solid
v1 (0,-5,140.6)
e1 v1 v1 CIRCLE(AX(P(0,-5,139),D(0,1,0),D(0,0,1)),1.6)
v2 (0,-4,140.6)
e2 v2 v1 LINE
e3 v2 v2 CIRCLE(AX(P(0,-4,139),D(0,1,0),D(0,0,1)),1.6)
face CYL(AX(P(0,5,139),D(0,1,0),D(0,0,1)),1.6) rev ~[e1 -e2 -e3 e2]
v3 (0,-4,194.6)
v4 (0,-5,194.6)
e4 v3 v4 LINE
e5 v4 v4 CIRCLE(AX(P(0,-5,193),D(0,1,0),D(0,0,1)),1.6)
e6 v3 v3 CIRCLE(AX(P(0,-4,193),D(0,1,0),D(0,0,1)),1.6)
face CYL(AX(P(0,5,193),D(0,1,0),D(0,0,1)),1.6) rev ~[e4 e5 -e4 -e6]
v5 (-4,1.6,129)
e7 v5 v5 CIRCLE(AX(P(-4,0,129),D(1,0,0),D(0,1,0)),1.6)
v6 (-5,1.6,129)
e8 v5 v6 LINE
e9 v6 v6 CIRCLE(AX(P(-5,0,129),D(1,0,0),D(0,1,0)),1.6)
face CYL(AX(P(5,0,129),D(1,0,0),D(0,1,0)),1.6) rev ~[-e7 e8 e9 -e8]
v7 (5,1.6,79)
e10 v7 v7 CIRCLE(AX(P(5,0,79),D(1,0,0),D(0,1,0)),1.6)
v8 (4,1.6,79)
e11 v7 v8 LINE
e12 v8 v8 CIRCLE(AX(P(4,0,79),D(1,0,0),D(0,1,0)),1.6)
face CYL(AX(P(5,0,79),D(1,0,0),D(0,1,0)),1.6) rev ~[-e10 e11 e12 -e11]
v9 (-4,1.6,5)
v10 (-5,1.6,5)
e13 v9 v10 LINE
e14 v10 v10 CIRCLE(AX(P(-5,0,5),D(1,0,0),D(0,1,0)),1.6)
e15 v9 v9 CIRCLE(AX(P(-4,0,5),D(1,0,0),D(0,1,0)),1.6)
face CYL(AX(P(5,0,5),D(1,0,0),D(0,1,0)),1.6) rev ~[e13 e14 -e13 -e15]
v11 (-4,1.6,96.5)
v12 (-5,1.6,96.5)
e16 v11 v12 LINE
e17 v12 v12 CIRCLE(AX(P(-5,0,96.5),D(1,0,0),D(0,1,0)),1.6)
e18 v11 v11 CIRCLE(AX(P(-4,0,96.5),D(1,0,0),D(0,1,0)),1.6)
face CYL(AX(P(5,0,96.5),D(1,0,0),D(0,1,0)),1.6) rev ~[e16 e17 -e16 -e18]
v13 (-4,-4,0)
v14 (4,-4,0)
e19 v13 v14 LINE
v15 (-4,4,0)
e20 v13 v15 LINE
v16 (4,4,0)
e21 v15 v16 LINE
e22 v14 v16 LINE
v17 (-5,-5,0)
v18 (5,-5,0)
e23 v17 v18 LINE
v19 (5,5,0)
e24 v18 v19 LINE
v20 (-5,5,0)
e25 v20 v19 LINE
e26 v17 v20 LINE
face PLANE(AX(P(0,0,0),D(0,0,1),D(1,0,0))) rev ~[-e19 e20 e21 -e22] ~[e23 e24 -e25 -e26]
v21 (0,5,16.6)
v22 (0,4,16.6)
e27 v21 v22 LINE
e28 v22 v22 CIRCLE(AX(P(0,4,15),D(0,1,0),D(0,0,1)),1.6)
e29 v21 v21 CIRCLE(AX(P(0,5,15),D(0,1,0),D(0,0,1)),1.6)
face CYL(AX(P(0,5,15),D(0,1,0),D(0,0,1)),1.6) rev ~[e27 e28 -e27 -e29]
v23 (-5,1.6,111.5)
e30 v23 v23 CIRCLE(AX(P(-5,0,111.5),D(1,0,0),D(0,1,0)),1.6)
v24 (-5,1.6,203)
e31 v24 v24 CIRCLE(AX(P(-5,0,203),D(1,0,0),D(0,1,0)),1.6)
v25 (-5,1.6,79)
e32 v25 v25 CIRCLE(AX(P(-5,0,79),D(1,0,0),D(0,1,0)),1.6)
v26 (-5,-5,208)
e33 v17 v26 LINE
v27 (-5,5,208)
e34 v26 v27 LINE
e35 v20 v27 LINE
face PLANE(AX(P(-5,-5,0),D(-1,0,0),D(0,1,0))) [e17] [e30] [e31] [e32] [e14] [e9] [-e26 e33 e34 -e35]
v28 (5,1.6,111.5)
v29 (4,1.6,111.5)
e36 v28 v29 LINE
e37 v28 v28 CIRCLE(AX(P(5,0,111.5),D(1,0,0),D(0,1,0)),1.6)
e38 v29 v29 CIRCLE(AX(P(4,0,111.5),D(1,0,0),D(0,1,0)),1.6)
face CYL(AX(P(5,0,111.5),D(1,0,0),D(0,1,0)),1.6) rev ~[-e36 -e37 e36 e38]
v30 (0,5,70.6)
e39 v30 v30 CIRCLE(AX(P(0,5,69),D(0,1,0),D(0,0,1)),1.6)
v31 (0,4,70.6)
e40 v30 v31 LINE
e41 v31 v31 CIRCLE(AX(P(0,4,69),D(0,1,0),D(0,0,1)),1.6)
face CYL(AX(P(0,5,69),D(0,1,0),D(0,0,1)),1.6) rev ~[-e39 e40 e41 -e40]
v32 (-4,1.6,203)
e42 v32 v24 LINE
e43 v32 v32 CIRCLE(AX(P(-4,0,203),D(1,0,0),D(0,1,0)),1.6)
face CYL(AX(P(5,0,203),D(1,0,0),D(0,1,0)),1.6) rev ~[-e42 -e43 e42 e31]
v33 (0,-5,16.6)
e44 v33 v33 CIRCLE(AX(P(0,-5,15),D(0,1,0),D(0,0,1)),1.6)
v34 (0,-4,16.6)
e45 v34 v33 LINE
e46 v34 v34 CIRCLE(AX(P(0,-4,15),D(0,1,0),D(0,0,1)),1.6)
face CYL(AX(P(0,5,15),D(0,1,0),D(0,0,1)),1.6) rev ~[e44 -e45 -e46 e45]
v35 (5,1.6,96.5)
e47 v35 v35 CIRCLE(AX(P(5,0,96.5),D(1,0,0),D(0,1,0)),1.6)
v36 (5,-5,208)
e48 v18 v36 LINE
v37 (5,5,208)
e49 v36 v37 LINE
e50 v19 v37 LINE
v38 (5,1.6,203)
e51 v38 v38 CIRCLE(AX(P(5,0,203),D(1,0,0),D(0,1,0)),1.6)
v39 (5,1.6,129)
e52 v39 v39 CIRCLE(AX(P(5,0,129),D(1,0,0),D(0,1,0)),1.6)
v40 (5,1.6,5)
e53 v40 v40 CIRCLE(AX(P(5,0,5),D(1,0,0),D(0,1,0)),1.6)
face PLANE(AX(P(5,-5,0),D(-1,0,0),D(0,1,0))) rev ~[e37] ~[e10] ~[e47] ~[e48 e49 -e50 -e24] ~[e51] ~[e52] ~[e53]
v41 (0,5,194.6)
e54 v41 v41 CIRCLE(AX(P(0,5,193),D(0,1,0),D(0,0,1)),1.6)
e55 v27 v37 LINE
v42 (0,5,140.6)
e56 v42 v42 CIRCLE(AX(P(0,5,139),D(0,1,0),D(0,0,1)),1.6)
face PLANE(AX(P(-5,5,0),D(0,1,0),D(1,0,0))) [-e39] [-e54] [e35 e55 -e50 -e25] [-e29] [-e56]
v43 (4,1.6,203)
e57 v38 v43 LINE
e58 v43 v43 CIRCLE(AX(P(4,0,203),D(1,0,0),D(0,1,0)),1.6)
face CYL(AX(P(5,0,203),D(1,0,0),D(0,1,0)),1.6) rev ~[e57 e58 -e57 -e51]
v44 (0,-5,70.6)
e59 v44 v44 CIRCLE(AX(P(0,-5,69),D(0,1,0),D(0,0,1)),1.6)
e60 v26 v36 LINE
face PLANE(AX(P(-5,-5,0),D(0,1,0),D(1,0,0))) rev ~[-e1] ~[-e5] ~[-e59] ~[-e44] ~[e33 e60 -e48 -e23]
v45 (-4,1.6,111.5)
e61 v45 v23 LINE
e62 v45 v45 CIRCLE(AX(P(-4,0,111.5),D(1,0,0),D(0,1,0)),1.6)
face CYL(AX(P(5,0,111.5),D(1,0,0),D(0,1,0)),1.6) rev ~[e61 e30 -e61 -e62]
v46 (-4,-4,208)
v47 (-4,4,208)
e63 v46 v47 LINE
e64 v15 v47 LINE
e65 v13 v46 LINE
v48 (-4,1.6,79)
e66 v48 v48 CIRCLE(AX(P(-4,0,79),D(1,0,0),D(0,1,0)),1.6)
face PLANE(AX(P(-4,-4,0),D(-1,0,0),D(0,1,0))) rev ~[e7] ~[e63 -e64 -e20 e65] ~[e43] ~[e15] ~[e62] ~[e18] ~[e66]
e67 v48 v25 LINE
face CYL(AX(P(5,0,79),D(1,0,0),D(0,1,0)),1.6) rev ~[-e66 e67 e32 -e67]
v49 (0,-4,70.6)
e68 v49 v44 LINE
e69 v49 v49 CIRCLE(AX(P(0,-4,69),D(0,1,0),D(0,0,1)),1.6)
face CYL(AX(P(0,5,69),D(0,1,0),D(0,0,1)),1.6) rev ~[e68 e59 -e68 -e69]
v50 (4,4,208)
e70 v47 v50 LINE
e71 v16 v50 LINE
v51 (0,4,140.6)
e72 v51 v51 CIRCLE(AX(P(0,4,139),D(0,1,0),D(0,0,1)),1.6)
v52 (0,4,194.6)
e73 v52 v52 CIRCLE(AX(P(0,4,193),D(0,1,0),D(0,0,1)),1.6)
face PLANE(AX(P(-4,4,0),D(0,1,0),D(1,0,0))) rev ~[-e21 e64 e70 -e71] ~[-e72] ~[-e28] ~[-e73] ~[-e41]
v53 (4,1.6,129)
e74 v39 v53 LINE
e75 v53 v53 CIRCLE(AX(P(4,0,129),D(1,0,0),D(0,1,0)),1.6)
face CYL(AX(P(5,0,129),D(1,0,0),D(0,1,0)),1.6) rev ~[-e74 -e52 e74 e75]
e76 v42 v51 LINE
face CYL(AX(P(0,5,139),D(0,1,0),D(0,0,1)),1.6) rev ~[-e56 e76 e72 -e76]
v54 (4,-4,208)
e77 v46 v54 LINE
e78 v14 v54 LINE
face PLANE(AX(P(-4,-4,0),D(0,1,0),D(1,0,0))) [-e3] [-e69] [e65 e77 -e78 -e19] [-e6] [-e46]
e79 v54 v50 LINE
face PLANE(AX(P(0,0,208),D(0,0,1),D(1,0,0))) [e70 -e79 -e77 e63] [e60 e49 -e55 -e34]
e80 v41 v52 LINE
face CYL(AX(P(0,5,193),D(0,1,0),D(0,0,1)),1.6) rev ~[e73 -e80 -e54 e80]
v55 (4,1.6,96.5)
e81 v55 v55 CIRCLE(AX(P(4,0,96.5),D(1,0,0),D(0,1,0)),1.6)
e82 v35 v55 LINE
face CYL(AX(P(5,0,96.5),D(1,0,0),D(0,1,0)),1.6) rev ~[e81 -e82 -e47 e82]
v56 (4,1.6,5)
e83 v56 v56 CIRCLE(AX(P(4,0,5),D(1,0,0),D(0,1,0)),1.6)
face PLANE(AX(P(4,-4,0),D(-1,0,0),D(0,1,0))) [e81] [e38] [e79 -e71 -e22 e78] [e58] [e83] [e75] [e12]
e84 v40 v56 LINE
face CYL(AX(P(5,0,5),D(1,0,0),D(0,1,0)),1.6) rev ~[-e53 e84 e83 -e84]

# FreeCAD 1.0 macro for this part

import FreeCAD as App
import Part
import Sketcher
Q = App.Units.Quantity

doc = App.newDocument("Part")
params = doc.addObject("Spreadsheet::Sheet", "Params")
for row, (alias, value) in enumerate([
    ("sketch1_width", "10 mm"),
    ("sketch1_width2", "8 mm"),
    ("pad1_length", "208 mm"),
    ("sketch2_diameter", "3.2 mm"),
    ("sketch3_diameter", "3.2 mm"),
    ("sketch4_diameter", "3.2 mm"),
    ("sketch5_diameter", "3.2 mm"),
], start=1):
    params.set(f"A{row}", alias)
    params.set(f"B{row}", "=" + value)
    params.setAlias(f"B{row}", alias)

body = doc.addObject("PartDesign::Body", "Body")

# Sketch on XY plane
sketch1 = body.newObject("Sketcher::SketchObject", "Sketch")
sketch1.AttachmentSupport = (doc.getObject("XY_Plane"), [""])
sketch1.MapMode = "FlatFace"
sketch1.addGeometry([
    Part.LineSegment(App.Vector(-5, 5, 0), App.Vector(-5, -5, 0)),  # 0
    Part.LineSegment(App.Vector(-5, -5, 0), App.Vector(5, -5, 0)),  # 1
    Part.LineSegment(App.Vector(5, -5, 0), App.Vector(5, 5, 0)),  # 2
    Part.LineSegment(App.Vector(5, 5, 0), App.Vector(-5, 5, 0)),  # 3
    Part.LineSegment(App.Vector(4, -4, 0), App.Vector(-4, -4, 0)),  # 4
    Part.LineSegment(App.Vector(-4, -4, 0), App.Vector(-4, 4, 0)),  # 5
    Part.LineSegment(App.Vector(-4, 4, 0), App.Vector(4, 4, 0)),  # 6
    Part.LineSegment(App.Vector(4, 4, 0), App.Vector(4, -4, 0)),  # 7
], False)
sketch1.addConstraint([
    Sketcher.Constraint("Coincident", 0, 2, 1, 1),
    Sketcher.Constraint("Coincident", 1, 2, 2, 1),
    Sketcher.Constraint("Coincident", 2, 2, 3, 1),
    Sketcher.Constraint("Coincident", 3, 2, 0, 1),
    Sketcher.Constraint("Coincident", 4, 2, 5, 1),
    Sketcher.Constraint("Coincident", 5, 2, 6, 1),
    Sketcher.Constraint("Coincident", 6, 2, 7, 1),
    Sketcher.Constraint("Coincident", 7, 2, 4, 1),
    Sketcher.Constraint("Vertical", 0),
    Sketcher.Constraint("Horizontal", 1),
    Sketcher.Constraint("Vertical", 2),
    Sketcher.Constraint("Horizontal", 3),
    Sketcher.Constraint("Horizontal", 4),
    Sketcher.Constraint("Vertical", 5),
    Sketcher.Constraint("Horizontal", 6),
    Sketcher.Constraint("Vertical", 7),
    Sketcher.Constraint("Symmetric", 0, 2, 2, 2, -1, 1),
    Sketcher.Constraint("Symmetric", 4, 2, 6, 2, -1, 1),
    Sketcher.Constraint("Equal", 3, 0),
    Sketcher.Constraint("Equal", 6, 5),
    Sketcher.Constraint("DistanceX", 1, 1, 1, 2, Q("10 mm")),
    Sketcher.Constraint("DistanceX", 4, 2, 4, 1, Q("8 mm")),
])
sketch1.setExpression("Constraints[20]", "Params.sketch1_width")
sketch1.setExpression("Constraints[21]", "Params.sketch1_width2")
pad1 = body.newObject("PartDesign::Pad", "Pad")
pad1.Profile = sketch1
pad1.setExpression("Length", "Params.pad1_length")

# Sketch on YZ plane
sketch2 = body.newObject("Sketcher::SketchObject", "Sketch001")
sketch2.AttachmentSupport = (doc.getObject("YZ_Plane"), [""])
sketch2.MapMode = "FlatFace"
sketch2.AttachmentOffset = App.Placement(App.Vector(0, 0, 5), App.Rotation())
sketch2.addGeometry([
    Part.Circle(App.Vector(0, 203, 0), App.Vector(0, 0, 1), 1.6),
    Part.Circle(App.Vector(0, 111.5, 0), App.Vector(0, 0, 1), 1.6),
    Part.Circle(App.Vector(0, 96.5, 0), App.Vector(0, 0, 1), 1.6),
    Part.Circle(App.Vector(0, 5, 0), App.Vector(0, 0, 1), 1.6),
], False)
sketch2.addConstraint([
    Sketcher.Constraint("Equal", 0, 1),
    Sketcher.Constraint("Equal", 1, 2),
    Sketcher.Constraint("Equal", 2, 3),
    Sketcher.Constraint("PointOnObject", 0, 3, -2),
    Sketcher.Constraint("PointOnObject", 1, 3, -2),
    Sketcher.Constraint("PointOnObject", 2, 3, -2),
    Sketcher.Constraint("PointOnObject", 3, 3, -2),
    Sketcher.Constraint("Diameter", 0, Q("3.2 mm")),
    Sketcher.Constraint("DistanceY", -1, 1, 0, 3, Q("203 mm")),
    Sketcher.Constraint("DistanceY", -1, 1, 3, 3, Q("5 mm")),
    Sketcher.Constraint("DistanceY", 2, 3, 1, 3, Q("15 mm")),
    Sketcher.Constraint("DistanceY", -1, 1, 1, 3, Q("111.5 mm")),
])
sketch2.setExpression("Constraints[7]", "Params.sketch2_diameter")
pocket1 = body.newObject("PartDesign::Pocket", "Pocket")
pocket1.Profile = sketch2
pocket1.Type = "ThroughAll"

# Sketch on XZ plane
sketch3 = body.newObject("Sketcher::SketchObject", "Sketch002")
sketch3.AttachmentSupport = (doc.getObject("XZ_Plane"), [""])
sketch3.MapMode = "FlatFace"
sketch3.AttachmentOffset = App.Placement(App.Vector(0, 0, -5), App.Rotation())
sketch3.addGeometry([
    Part.Circle(App.Vector(0, 193, 0), App.Vector(0, 0, 1), 1.6),
    Part.Circle(App.Vector(0, 15, 0), App.Vector(0, 0, 1), 1.6),
], False)
sketch3.addConstraint([
    Sketcher.Constraint("Equal", 0, 1),
    Sketcher.Constraint("PointOnObject", 0, 3, -2),
    Sketcher.Constraint("PointOnObject", 1, 3, -2),
    Sketcher.Constraint("Diameter", 0, Q("3.2 mm")),
    Sketcher.Constraint("DistanceY", -1, 1, 0, 3, Q("193 mm")),
    Sketcher.Constraint("DistanceY", -1, 1, 1, 3, Q("15 mm")),
])
sketch3.setExpression("Constraints[3]", "Params.sketch3_diameter")
pocket2 = body.newObject("PartDesign::Pocket", "Pocket001")
pocket2.Profile = sketch3
pocket2.Type = "ThroughAll"
pocket2.Reversed = True

# Sketch on YZ plane
sketch4 = body.newObject("Sketcher::SketchObject", "Sketch003")
sketch4.AttachmentSupport = (doc.getObject("YZ_Plane"), [""])
sketch4.MapMode = "FlatFace"
sketch4.AttachmentOffset = App.Placement(App.Vector(0, 0, 5), App.Rotation())
sketch4.addGeometry([
    Part.Circle(App.Vector(0, 129, 0), App.Vector(0, 0, 1), 1.6),
    Part.Circle(App.Vector(0, 79, 0), App.Vector(0, 0, 1), 1.6),
], False)
sketch4.addConstraint([
    Sketcher.Constraint("Equal", 0, 1),
    Sketcher.Constraint("PointOnObject", 0, 3, -2),
    Sketcher.Constraint("PointOnObject", 1, 3, -2),
    Sketcher.Constraint("Diameter", 0, Q("3.2 mm")),
    Sketcher.Constraint("DistanceY", -1, 1, 0, 3, Q("129 mm")),
    Sketcher.Constraint("DistanceY", -1, 1, 1, 3, Q("79 mm")),
])
sketch4.setExpression("Constraints[3]", "Params.sketch4_diameter")
pocket3 = body.newObject("PartDesign::Pocket", "Pocket002")
pocket3.Profile = sketch4
pocket3.Type = "ThroughAll"

# Sketch on XZ plane
sketch5 = body.newObject("Sketcher::SketchObject", "Sketch004")
sketch5.AttachmentSupport = (doc.getObject("XZ_Plane"), [""])
sketch5.MapMode = "FlatFace"
sketch5.AttachmentOffset = App.Placement(App.Vector(0, 0, -5), App.Rotation())
sketch5.addGeometry([
    Part.Circle(App.Vector(0, 139, 0), App.Vector(0, 0, 1), 1.6),
    Part.Circle(App.Vector(0, 69, 0), App.Vector(0, 0, 1), 1.6),
], False)
sketch5.addConstraint([
    Sketcher.Constraint("Equal", 0, 1),
    Sketcher.Constraint("PointOnObject", 0, 3, -2),
    Sketcher.Constraint("PointOnObject", 1, 3, -2),
    Sketcher.Constraint("Diameter", 0, Q("3.2 mm")),
    Sketcher.Constraint("DistanceY", -1, 1, 0, 3, Q("139 mm")),
    Sketcher.Constraint("DistanceY", -1, 1, 1, 3, Q("69 mm")),
])
sketch5.setExpression("Constraints[3]", "Params.sketch5_diameter")
pocket4 = body.newObject("PartDesign::Pocket", "Pocket003")
pocket4.Profile = sketch5
pocket4.Type = "ThroughAll"
pocket4.Reversed = True

doc.recompute()
